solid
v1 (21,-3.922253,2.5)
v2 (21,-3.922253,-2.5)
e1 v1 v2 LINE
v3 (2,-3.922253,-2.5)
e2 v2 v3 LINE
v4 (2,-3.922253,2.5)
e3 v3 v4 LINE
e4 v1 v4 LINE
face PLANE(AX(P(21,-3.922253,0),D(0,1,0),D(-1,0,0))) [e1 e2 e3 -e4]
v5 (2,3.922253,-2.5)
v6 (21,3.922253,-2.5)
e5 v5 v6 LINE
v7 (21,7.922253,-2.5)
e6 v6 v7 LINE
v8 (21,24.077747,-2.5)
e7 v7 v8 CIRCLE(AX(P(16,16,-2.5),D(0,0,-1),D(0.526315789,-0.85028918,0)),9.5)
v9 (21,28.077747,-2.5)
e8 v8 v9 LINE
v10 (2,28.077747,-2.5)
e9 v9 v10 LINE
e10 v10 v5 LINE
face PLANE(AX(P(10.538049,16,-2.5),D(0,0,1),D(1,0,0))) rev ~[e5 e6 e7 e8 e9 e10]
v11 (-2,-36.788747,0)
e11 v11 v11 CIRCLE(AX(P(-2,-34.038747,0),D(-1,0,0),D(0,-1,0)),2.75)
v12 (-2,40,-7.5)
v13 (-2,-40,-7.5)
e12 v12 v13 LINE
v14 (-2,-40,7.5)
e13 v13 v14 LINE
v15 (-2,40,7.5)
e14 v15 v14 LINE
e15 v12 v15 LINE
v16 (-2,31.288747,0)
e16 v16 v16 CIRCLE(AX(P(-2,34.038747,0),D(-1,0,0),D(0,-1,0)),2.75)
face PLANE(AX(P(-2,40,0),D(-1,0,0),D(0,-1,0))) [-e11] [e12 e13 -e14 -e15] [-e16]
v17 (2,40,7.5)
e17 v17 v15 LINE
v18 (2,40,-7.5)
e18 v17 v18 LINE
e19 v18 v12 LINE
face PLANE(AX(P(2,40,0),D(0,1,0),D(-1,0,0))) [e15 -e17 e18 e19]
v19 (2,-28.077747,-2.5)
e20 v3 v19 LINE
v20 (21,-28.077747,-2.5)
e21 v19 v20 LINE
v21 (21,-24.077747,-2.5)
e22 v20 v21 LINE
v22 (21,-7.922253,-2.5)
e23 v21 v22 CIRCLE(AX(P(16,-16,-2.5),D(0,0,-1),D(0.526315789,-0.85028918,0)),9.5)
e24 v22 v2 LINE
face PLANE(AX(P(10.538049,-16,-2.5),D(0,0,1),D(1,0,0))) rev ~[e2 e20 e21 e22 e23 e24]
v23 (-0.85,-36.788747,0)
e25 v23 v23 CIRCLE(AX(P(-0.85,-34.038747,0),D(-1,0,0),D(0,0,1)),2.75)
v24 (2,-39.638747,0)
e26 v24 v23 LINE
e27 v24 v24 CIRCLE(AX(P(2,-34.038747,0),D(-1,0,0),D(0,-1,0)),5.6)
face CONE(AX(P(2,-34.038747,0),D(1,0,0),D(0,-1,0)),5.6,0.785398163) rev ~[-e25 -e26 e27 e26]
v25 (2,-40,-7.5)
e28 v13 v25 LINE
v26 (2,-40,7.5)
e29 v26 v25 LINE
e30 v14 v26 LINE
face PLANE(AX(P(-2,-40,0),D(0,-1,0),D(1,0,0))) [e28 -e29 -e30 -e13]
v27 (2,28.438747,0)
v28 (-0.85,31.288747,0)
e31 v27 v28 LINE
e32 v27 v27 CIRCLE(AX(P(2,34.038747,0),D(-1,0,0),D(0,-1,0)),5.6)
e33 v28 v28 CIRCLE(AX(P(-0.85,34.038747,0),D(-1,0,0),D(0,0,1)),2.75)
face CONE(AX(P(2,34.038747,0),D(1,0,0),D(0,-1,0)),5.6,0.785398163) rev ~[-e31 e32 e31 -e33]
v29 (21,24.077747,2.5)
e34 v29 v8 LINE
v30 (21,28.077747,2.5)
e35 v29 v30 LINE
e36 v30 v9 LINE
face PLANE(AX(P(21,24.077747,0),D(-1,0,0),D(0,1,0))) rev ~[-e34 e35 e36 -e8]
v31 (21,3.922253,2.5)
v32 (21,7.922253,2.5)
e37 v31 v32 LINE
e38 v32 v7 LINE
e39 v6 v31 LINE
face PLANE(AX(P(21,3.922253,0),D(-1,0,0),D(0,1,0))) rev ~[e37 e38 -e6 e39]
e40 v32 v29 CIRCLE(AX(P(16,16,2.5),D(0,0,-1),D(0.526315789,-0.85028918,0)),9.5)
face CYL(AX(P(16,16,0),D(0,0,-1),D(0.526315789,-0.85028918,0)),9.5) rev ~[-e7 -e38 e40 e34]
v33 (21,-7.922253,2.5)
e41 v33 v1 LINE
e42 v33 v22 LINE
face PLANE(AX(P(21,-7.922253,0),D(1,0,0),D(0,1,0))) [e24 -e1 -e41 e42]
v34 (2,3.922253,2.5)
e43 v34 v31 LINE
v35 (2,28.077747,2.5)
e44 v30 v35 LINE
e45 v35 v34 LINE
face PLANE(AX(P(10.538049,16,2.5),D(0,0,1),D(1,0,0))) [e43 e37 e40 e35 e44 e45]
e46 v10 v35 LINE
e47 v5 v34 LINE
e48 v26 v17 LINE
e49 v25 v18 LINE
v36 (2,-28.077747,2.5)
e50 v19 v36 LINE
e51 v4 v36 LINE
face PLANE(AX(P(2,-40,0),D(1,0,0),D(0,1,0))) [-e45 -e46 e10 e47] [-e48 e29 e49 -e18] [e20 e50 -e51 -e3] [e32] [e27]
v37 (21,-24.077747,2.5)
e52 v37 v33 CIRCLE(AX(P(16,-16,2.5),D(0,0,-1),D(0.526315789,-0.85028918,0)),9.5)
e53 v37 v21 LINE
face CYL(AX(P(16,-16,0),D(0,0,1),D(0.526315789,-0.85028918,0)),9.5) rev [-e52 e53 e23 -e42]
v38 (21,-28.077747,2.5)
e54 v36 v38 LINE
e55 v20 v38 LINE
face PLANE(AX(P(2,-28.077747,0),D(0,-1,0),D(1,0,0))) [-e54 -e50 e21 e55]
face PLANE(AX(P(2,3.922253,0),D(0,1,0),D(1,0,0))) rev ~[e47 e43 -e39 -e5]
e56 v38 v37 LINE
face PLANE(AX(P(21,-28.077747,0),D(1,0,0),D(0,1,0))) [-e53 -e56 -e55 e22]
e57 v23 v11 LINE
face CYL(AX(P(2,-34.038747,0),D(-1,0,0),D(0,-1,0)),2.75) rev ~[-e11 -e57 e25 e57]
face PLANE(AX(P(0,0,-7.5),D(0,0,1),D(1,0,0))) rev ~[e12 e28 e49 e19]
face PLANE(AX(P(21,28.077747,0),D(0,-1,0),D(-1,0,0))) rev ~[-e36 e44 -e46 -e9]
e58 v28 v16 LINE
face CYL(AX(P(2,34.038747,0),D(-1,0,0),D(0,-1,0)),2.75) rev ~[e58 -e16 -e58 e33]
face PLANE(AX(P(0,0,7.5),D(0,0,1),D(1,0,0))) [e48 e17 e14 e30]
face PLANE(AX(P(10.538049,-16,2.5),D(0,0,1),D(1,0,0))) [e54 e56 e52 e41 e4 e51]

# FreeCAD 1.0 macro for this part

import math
import FreeCAD as App
import Part
import Sketcher

V = App.Vector


def add_polygon(sketch, points):
    """Adds a closed chain of lines whose ends are joined by coincident constraints."""
    first, n = sketch.GeometryCount, len(points)
    for a, b in zip(points, points[1:] + points[:1]):
        sketch.addGeometry(Part.LineSegment(App.Vector(*a, 0), App.Vector(*b, 0)), False)
    for i in range(n):
        sketch.addConstraint(Sketcher.Constraint("Coincident", first + i, 2, first + (i + 1) % n, 1))

doc = App.newDocument("Part")
params = doc.addObject("Spreadsheet::Sheet", "Params")
for row, (alias, value) in enumerate([
    ("sketch1_width", "4 mm"),
    ("sketch1_height", "80 mm"),
    ("pad1_length", "15 mm"),
    ("sketch2_radius", "9.5 mm"),
    ("sketch2_width", "19 mm"),
    ("sketch2_height", "4 mm"),
    ("pad2_length", "5 mm"),
    ("sketch3_diameter", "5.5 mm"),
    ("hole_diameter", "5.5 mm"),
    ("hole_depth", "8 mm"),
    ("hole_csink_diameter", "11.2 mm"),
], start=1):
    params.set(f"A{row}", alias)
    params.set(f"B{row}", "=" + value)
    params.setAlias(f"B{row}", alias)

body = doc.addObject("PartDesign::Body", "Body")

sketch1 = body.newObject("Sketcher::SketchObject", "Sketch")
sketch1.AttachmentSupport = (doc.getObject("XY_Plane"), [""])
sketch1.MapMode = "FlatFace"
add_polygon(sketch1, [(2, 40), (-2, 40), (-2, -40), (2, -40)])
sketch1.addConstraint([
    Sketcher.Constraint("Horizontal", 0),
    Sketcher.Constraint("Vertical", 1),
    Sketcher.Constraint("Horizontal", 2),
    Sketcher.Constraint("Vertical", 3),
    Sketcher.Constraint("Symmetric", 0, 2, 2, 2, -1, 1),
    Sketcher.Constraint("DistanceX", 0, 2, 0, 1, 4.0),
    Sketcher.Constraint("DistanceY", 1, 2, 1, 1, 80.0),
])
sketch1.setExpression("Constraints[9]", "Params.sketch1_width")
sketch1.setExpression("Constraints[10]", "Params.sketch1_height")
pad1 = body.newObject("PartDesign::Pad", "Pad")
pad1.Profile = sketch1
pad1.setExpression("Length", "Params.pad1_length")
pad1.Midplane = True

sketch2 = body.newObject("Sketcher::SketchObject", "Sketch001")
sketch2.AttachmentSupport = (doc.getObject("XY_Plane"), [""])
sketch2.MapMode = "FlatFace"
sketch2.addGeometry([
    Part.LineSegment(V(21, 28.1, 0), V(2, 28.1, 0)),
    Part.LineSegment(V(2, 28.1, 0), V(2, 3.9, 0)),
    Part.LineSegment(V(2, 3.9, 0), V(21, 3.9, 0)),
    Part.LineSegment(V(21, 3.9, 0), V(21, 7.9, 0)),
    Part.ArcOfCircle(Part.Circle(V(16, 16, 0), V(0, 0, 1), 9.5), math.radians(58), math.radians(302)),
    Part.LineSegment(V(21, 24.1, 0), V(21, 28.1, 0)),
    Part.LineSegment(V(21, -3.9, 0), V(2, -3.9, 0)),
    Part.LineSegment(V(2, -3.9, 0), V(2, -28.1, 0)),
    Part.LineSegment(V(2, -28.1, 0), V(21, -28.1, 0)),
    Part.LineSegment(V(21, -28.1, 0), V(21, -24.1, 0)),
    Part.ArcOfCircle(Part.Circle(V(16, -16, 0), V(0, 0, 1), 9.5), math.radians(58), math.radians(302)),
    Part.LineSegment(V(21, -7.9, 0), V(21, -3.9, 0)),
], False)
sketch2.addConstraint([
    Sketcher.Constraint("Coincident", 0, 2, 1, 1),
    Sketcher.Constraint("Coincident", 1, 2, 2, 1),
    Sketcher.Constraint("Coincident", 2, 2, 3, 1),
    Sketcher.Constraint("Coincident", 3, 2, 4, 2),
    Sketcher.Constraint("Coincident", 4, 1, 5, 1),
    Sketcher.Constraint("Coincident", 5, 2, 0, 1),
    Sketcher.Constraint("Coincident", 6, 2, 7, 1),
    Sketcher.Constraint("Coincident", 7, 2, 8, 1),
    Sketcher.Constraint("Coincident", 8, 2, 9, 1),
    Sketcher.Constraint("Coincident", 9, 2, 10, 2),
    Sketcher.Constraint("Coincident", 10, 1, 11, 1),
    Sketcher.Constraint("Coincident", 11, 2, 6, 1),
    Sketcher.Constraint("Horizontal", 0),
    Sketcher.Constraint("Vertical", 1),
    Sketcher.Constraint("Horizontal", 2),
    Sketcher.Constraint("Vertical", 3),
    Sketcher.Constraint("Vertical", 5),
    Sketcher.Constraint("Horizontal", 6),
    Sketcher.Constraint("Vertical", 7),
    Sketcher.Constraint("Horizontal", 8),
    Sketcher.Constraint("Vertical", 9),
    Sketcher.Constraint("Vertical", 11),
    Sketcher.Constraint("Equal", 4, 10),
    Sketcher.Constraint("Symmetric", 4, 3, 10, 3, -1),
    Sketcher.Constraint("Symmetric", 1, 2, 6, 2, -1),
    Sketcher.Constraint("Symmetric", 5, 2, 8, 2, -1),
    Sketcher.Constraint("Vertical", 3, 2, 4, 1),
    Sketcher.Constraint("Vertical", 9, 2, 10, 1),
    Sketcher.Constraint("Equal", 3, 5),
    Sketcher.Constraint("Radius", 4, 9.5),
    Sketcher.Constraint("DistanceX", 0, 2, 0, 1, 19.0),
    Sketcher.Constraint("DistanceY", 3, 1, 3, 2, 4.0),
    Sketcher.Constraint("DistanceX", -1, 1, 4, 3, 16.0),
    Sketcher.Constraint("DistanceY", -1, 1, 4, 3, 16.0),
    Sketcher.Constraint("DistanceX", -1, 1, 0, 2, 2.0),
])
sketch2.setExpression("Constraints[29]", "Params.sketch2_radius")
sketch2.setExpression("Constraints[30]", "Params.sketch2_width")
sketch2.setExpression("Constraints[31]", "Params.sketch2_height")
pad2 = body.newObject("PartDesign::Pad", "Pad001")
pad2.Profile = sketch2
pad2.setExpression("Length", "Params.pad2_length")
pad2.Midplane = True

sketch3 = body.newObject("Sketcher::SketchObject", "Sketch002")
sketch3.AttachmentSupport = (doc.getObject("YZ_Plane"), [""])
sketch3.MapMode = "FlatFace"
sketch3.AttachmentOffset = App.Placement(V(0, 0, 2), App.Rotation())
sketch3.addGeometry([
    Part.Circle(V(-34, 0, 0), V(0, 0, 1), 2.8),
    Part.Circle(V(34, 0, 0), V(0, 0, 1), 2.8),
], False)
sketch3.addConstraint([
    Sketcher.Constraint("Equal", 0, 1),
    Sketcher.Constraint("Symmetric", 0, 3, 1, 3, -1, 1),
    Sketcher.Constraint("PointOnObject", 0, 3, -1),
    Sketcher.Constraint("Diameter", 0, 5.5),
    Sketcher.Constraint("DistanceX", 0, 3, -1, 1, 34.038747),
])
sketch3.setExpression("Constraints[3]", "Params.sketch3_diameter")
doc.recompute()
hole = body.newObject("PartDesign::Hole", "Hole")
hole.Profile = sketch3
hole.ThreadType = "None"
hole.setExpression("Diameter", "Params.hole_diameter")
hole.DepthType = "Dimension"
hole.setExpression("Depth", "Params.hole_depth")
hole.DrillPoint = "Angled"
hole.DrillPointAngle = 118
hole.HoleCutType = "Countersink"
hole.setExpression("HoleCutDiameter", "Params.hole_csink_diameter")
hole.HoleCutCountersinkAngle = 90

doc.recompute()
